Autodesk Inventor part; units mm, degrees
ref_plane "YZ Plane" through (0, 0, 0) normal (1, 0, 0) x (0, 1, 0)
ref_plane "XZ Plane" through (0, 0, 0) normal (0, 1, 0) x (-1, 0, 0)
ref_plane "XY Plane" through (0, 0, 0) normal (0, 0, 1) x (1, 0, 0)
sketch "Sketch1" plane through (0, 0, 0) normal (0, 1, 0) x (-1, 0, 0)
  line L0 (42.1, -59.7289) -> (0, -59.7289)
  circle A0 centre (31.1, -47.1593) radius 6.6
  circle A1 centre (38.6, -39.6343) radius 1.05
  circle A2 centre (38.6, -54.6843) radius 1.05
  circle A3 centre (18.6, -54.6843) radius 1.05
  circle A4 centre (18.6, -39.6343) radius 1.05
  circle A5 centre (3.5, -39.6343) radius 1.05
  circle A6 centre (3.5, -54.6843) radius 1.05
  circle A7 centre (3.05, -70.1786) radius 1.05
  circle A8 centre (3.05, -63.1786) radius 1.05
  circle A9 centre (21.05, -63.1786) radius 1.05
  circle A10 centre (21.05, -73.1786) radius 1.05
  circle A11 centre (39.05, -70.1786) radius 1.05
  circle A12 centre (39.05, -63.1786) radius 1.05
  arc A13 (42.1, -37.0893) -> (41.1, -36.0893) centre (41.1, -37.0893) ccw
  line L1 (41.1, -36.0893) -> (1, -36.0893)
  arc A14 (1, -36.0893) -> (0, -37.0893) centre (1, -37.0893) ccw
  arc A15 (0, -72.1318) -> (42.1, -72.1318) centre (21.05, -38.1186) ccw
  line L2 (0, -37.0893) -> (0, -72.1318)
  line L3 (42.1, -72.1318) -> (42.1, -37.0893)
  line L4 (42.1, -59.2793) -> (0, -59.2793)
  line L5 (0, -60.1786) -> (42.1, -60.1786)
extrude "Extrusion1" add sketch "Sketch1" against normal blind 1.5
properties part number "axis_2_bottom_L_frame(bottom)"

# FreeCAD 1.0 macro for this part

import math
import FreeCAD as App
import Part
import Sketcher

doc = App.newDocument("Part")
params = doc.addObject("Spreadsheet::Sheet", "Params")
for row, (alias, value) in enumerate([
    ("sketch1_radius", "1 mm"),
    ("sketch1_radius2", "40 mm"),
    ("sketch1_diameter", "2.1 mm"),
    ("sketch1_diameter2", "13.2 mm"),
    ("sketch1_width", "40.1 mm"),
    ("pad1_length", "1.5 mm"),
], start=1):
    params.set(f"A{row}", alias)
    params.set(f"B{row}", "=" + value)
    params.setAlias(f"B{row}", alias)

body = doc.addObject("PartDesign::Body", "Body")

sketch1 = body.newObject("Sketcher::SketchObject", "Sketch")
sketch1.AttachmentSupport = (doc.getObject("XZ_Plane"), [""])
sketch1.MapMode = "FlatFace"
sketch1.addGeometry([
    Part.ArcOfCircle(Part.Circle(App.Vector(-41.1, -37.1, 0), App.Vector(0, 0, 1), 1), math.radians(90), math.radians(180)),
    Part.LineSegment(App.Vector(-41.1, -36.1, 0), App.Vector(-1, -36.1, 0)),
    Part.ArcOfCircle(Part.Circle(App.Vector(-1, -37.1, 0), App.Vector(0, 0, 1), 1), math.radians(0), math.radians(90)),
    Part.LineSegment(App.Vector(0, -37.1, 0), App.Vector(0, -72.1, 0)),
    Part.ArcOfCircle(Part.Circle(App.Vector(-21.1, -38.1, 0), App.Vector(0, 0, 1), 40), math.radians(-122), math.radians(-58)),
    Part.LineSegment(App.Vector(-42.1, -72.1, 0), App.Vector(-42.1, -37.1, 0)),
    Part.Circle(App.Vector(-39, -63.2, 0), App.Vector(0, 0, 1), 1.1),
    Part.Circle(App.Vector(-3, -70.2, 0), App.Vector(0, 0, 1), 1.1),
    Part.Circle(App.Vector(-3, -63.2, 0), App.Vector(0, 0, 1), 1.1),
    Part.Circle(App.Vector(-21.1, -73.2, 0), App.Vector(0, 0, 1), 1.1),
    Part.Circle(App.Vector(-39, -70.2, 0), App.Vector(0, 0, 1), 1.1),
    Part.Circle(App.Vector(-21.1, -63.2, 0), App.Vector(0, 0, 1), 1.1),
    Part.Circle(App.Vector(-38.6, -39.6, 0), App.Vector(0, 0, 1), 1.1),
    Part.Circle(App.Vector(-3.5, -54.7, 0), App.Vector(0, 0, 1), 1.1),
    Part.Circle(App.Vector(-18.6, -54.7, 0), App.Vector(0, 0, 1), 1.1),
    Part.Circle(App.Vector(-3.5, -39.6, 0), App.Vector(0, 0, 1), 1.1),
    Part.Circle(App.Vector(-18.6, -39.6, 0), App.Vector(0, 0, 1), 1.1),
    Part.Circle(App.Vector(-31.1, -47.2, 0), App.Vector(0, 0, 1), 6.6),
    Part.Circle(App.Vector(-38.6, -54.7, 0), App.Vector(0, 0, 1), 1.1),
], False)
sketch1.addConstraint([
    Sketcher.Constraint("Tangent", 0, 1, 1, 1),
    Sketcher.Constraint("Tangent", 1, 2, 2, 2),
    Sketcher.Constraint("Tangent", 2, 1, 3, 1),
    Sketcher.Constraint("Coincident", 3, 2, 4, 2),
    Sketcher.Constraint("Coincident", 4, 1, 5, 1),
    Sketcher.Constraint("Tangent", 5, 2, 0, 2),
    Sketcher.Constraint("Horizontal", 1),
    Sketcher.Constraint("Vertical", 3),
    Sketcher.Constraint("Vertical", 5),
    Sketcher.Constraint("Equal", 0, 2),
    Sketcher.Constraint("Equal", 6, 7),
    Sketcher.Constraint("Equal", 7, 8),
    Sketcher.Constraint("Equal", 8, 9),
    Sketcher.Constraint("Equal", 9, 10),
    Sketcher.Constraint("Equal", 10, 11),
    Sketcher.Constraint("Equal", 11, 12),
    Sketcher.Constraint("Equal", 12, 13),
    Sketcher.Constraint("Equal", 13, 14),
    Sketcher.Constraint("Equal", 14, 15),
    Sketcher.Constraint("Equal", 15, 16),
    Sketcher.Constraint("Equal", 16, 18),
    Sketcher.Constraint("PointOnObject", 2, 1, -2),
    Sketcher.Constraint("Horizontal", 6, 3, 8, 3),
    Sketcher.Constraint("Horizontal", 7, 3, 10, 3),
    Sketcher.Constraint("Horizontal", 8, 3, 11, 3),
    Sketcher.Constraint("Horizontal", 13, 3, 14, 3),
    Sketcher.Constraint("Horizontal", 12, 3, 15, 3),
    Sketcher.Constraint("Horizontal", 15, 3, 16, 3),
    Sketcher.Constraint("Horizontal", 14, 3, 18, 3),
    Sketcher.Constraint("Horizontal", 3, 2, 4, 1),
    Sketcher.Constraint("Vertical", 7, 3, 8, 3),
    Sketcher.Constraint("Vertical", 4, 3, 9, 3),
    Sketcher.Constraint("Vertical", 6, 3, 10, 3),
    Sketcher.Constraint("Vertical", 9, 3, 11, 3),
    Sketcher.Constraint("Vertical", 13, 3, 15, 3),
    Sketcher.Constraint("Vertical", 14, 3, 16, 3),
    Sketcher.Constraint("Vertical", 12, 3, 18, 3),
    Sketcher.Constraint("Radius", 0, 1.0),
    Sketcher.Constraint("Radius", 4, 40.0),
    Sketcher.Constraint("Diameter", 6, 2.1),
    Sketcher.Constraint("Diameter", 17, 13.2),
    Sketcher.Constraint("DistanceX", 1, 1, 1, 2, 40.1),
    Sketcher.Constraint("DistanceX", 6, 3, 4, 3, 18.0),
    Sketcher.Constraint("DistanceX", 6, 3, 7, 3, 36.0),
    Sketcher.Constraint("DistanceY", 7, 3, 6, 3, 7.0),
    Sketcher.Constraint("DistanceY", 9, 3, 7, 3, 3.0),
    Sketcher.Constraint("DistanceX", 12, 3, 16, 3, 20.0),
    Sketcher.Constraint("DistanceX", 0, 3, 17, 3, 10.0),
    Sketcher.Constraint("DistanceX", 12, 3, -1, 1, 38.6),
    Sketcher.Constraint("DistanceX", 13, 3, -1, 1, 3.5),
    Sketcher.Constraint("DistanceY", 6, 3, 4, 3, 25.06),
    Sketcher.Constraint("DistanceY", 13, 3, 15, 3, 15.05),
    Sketcher.Constraint("DistanceY", 17, 3, 0, 3, 10.07),
    Sketcher.Constraint("DistanceY", 3, 2, 3, 1, 35.0425),
    Sketcher.Constraint("DistanceY", 12, 3, 0, 3, 2.545),
    Sketcher.Constraint("DistanceY", 0, 3, -1, 1, 37.0893),
])
sketch1.setExpression("Constraints[37]", "Params.sketch1_radius")
sketch1.setExpression("Constraints[38]", "Params.sketch1_radius2")
sketch1.setExpression("Constraints[39]", "Params.sketch1_diameter")
sketch1.setExpression("Constraints[40]", "Params.sketch1_diameter2")
sketch1.setExpression("Constraints[41]", "Params.sketch1_width")
pad1 = body.newObject("PartDesign::Pad", "Pad")
pad1.Profile = sketch1
pad1.setExpression("Length", "Params.pad1_length")

doc.recompute()
